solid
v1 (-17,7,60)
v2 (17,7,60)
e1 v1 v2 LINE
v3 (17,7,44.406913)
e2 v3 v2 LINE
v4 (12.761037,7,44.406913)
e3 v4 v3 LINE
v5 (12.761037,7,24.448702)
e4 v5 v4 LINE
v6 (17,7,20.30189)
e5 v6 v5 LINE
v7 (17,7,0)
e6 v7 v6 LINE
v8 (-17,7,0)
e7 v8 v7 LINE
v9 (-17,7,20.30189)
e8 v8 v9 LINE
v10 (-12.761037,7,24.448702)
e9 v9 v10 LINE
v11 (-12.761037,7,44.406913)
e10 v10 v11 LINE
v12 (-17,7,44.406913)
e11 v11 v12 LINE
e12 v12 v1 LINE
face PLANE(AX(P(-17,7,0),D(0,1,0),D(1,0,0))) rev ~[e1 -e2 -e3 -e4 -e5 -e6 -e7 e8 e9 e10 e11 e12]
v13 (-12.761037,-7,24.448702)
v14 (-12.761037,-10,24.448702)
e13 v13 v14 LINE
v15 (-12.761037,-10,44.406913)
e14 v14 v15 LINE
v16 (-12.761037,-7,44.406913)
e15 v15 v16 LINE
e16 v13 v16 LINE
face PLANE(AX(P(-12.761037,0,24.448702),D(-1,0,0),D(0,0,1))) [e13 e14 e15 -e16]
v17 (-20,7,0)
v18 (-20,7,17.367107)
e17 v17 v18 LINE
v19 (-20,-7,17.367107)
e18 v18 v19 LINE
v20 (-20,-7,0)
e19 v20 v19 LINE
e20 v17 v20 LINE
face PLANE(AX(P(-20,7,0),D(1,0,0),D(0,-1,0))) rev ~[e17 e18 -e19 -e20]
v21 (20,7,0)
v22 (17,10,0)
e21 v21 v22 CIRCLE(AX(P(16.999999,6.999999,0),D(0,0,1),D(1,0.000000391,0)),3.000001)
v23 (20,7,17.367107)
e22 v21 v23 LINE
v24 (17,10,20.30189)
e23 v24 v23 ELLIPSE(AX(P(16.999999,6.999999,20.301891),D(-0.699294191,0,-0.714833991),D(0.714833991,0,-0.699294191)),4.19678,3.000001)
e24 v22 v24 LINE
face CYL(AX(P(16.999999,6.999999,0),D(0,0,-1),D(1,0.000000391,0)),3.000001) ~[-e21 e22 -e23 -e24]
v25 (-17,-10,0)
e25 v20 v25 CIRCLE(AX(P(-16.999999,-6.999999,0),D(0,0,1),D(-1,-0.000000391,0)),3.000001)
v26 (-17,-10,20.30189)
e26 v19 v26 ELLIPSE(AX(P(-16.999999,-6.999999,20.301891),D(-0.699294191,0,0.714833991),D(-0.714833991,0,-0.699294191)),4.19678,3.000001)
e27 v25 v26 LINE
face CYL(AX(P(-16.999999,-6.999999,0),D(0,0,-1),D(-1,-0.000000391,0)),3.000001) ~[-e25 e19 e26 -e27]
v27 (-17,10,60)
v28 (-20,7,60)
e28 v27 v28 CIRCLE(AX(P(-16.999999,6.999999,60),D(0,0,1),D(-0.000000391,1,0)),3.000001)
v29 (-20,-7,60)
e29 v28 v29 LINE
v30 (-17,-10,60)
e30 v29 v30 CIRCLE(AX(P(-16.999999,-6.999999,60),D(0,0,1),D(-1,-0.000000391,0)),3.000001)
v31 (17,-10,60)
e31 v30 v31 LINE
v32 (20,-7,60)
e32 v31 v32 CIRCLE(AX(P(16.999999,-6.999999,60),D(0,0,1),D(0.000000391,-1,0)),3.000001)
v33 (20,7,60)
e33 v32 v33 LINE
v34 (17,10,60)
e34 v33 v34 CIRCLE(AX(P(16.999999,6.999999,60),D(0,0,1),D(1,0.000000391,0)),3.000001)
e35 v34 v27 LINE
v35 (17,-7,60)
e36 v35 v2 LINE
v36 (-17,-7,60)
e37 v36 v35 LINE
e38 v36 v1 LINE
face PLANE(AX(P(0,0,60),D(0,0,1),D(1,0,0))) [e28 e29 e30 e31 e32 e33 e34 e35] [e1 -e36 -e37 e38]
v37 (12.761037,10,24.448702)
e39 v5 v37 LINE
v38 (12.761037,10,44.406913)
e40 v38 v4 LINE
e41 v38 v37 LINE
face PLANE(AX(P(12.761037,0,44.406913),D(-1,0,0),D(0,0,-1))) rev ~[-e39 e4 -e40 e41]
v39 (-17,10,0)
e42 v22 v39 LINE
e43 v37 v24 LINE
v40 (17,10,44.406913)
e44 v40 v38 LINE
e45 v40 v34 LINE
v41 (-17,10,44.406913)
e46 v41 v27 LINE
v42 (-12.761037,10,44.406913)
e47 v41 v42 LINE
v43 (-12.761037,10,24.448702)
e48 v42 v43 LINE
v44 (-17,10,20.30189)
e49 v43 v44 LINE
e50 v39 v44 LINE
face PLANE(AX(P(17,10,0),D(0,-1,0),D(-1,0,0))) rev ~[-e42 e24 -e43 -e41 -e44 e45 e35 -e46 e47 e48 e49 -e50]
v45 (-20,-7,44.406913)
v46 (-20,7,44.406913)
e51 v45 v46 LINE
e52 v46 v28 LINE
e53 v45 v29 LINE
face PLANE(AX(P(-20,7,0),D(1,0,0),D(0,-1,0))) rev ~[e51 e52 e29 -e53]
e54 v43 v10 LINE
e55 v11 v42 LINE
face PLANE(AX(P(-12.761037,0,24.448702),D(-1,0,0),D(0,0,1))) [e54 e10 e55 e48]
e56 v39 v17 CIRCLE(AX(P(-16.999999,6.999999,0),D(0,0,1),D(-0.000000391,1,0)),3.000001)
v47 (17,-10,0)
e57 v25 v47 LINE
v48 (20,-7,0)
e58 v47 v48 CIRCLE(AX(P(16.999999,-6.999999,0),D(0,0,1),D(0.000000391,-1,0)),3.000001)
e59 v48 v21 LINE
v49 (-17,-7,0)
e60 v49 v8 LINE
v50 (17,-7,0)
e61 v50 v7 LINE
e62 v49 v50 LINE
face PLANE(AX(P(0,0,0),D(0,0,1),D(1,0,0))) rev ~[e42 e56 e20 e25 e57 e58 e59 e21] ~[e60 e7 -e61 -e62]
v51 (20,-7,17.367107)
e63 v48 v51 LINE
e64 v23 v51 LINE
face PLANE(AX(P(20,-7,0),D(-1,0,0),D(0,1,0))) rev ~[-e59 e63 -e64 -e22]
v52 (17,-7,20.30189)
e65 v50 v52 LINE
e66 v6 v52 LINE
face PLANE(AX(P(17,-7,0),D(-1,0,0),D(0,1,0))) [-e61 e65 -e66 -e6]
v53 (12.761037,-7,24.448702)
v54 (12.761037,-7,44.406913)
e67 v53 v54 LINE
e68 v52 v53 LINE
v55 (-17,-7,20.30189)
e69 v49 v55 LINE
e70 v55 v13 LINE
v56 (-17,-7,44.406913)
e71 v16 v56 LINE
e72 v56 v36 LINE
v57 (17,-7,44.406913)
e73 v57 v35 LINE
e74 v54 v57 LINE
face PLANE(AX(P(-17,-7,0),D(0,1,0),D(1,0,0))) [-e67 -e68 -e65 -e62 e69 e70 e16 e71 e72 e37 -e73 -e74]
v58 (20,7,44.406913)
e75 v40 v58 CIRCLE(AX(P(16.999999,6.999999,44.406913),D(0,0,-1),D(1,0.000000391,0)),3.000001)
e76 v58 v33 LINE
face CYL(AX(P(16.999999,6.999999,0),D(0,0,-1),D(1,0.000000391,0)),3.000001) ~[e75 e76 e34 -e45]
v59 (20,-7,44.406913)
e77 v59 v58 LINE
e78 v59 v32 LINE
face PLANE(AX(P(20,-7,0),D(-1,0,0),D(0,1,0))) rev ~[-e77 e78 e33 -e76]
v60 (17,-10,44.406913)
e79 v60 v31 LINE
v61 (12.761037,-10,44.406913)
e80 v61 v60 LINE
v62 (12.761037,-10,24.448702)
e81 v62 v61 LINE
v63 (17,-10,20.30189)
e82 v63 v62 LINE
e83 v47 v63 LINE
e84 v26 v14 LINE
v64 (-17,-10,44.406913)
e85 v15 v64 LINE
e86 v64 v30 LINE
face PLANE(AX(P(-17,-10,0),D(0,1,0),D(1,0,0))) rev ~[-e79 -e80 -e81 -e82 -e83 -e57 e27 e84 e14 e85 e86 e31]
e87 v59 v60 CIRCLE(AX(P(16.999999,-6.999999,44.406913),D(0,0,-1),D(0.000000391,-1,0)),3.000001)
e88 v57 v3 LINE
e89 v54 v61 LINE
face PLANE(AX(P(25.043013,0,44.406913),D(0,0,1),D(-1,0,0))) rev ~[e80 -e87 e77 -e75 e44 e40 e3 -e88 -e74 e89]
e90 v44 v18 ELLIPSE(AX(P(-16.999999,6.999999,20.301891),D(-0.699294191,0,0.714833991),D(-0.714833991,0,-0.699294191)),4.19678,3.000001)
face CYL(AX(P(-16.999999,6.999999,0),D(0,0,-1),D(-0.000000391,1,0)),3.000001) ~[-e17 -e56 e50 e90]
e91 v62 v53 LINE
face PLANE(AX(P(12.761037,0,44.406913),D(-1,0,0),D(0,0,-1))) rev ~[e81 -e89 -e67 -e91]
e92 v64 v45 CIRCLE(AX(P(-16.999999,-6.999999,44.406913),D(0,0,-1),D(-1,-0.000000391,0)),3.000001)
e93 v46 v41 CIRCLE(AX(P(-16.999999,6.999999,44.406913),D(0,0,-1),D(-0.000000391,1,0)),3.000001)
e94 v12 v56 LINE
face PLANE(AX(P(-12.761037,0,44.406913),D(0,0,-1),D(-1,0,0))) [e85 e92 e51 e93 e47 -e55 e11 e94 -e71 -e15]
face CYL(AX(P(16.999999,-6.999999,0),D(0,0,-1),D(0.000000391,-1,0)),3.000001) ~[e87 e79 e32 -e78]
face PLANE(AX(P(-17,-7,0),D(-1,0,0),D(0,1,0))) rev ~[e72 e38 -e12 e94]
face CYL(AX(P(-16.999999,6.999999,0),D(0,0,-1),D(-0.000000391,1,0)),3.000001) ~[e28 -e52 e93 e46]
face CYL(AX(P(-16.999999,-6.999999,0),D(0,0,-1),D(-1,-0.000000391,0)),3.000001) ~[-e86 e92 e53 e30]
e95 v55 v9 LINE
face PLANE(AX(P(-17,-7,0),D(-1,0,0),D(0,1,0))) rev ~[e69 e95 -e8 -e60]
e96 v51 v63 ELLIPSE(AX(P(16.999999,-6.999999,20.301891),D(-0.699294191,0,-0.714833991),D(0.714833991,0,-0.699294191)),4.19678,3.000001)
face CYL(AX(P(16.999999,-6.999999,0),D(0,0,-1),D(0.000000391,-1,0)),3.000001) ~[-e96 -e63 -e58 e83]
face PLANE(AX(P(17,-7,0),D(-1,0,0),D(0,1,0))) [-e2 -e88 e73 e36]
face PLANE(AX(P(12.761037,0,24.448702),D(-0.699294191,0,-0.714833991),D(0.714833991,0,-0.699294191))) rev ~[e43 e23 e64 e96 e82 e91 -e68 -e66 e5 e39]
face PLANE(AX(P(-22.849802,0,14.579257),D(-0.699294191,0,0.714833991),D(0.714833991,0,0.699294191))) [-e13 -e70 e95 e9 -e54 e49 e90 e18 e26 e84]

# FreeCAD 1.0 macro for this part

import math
import FreeCAD as App
import Part
import Sketcher

V = App.Vector
Q = App.Units.Quantity

doc = App.newDocument("Part")
body = doc.addObject("PartDesign::Body", "Body")

# Sketch on XY plane
sketch1 = body.newObject("Sketcher::SketchObject", "Sketch")
sketch1.AttachmentSupport = (doc.getObject("XY_Plane"), [""])
sketch1.MapMode = "FlatFace"
sketch1.addGeometry([
    Part.LineSegment(V(-17, -10, 0), V(17, -10, 0)),  # 0
    Part.ArcOfCircle(Part.Circle(V(17, -7, 0), V(0, 0, 1), 3), math.radians(-90), math.radians(0)),  # 1
    Part.LineSegment(V(20, -7, 0), V(20, 7, 0)),  # 2
    Part.ArcOfCircle(Part.Circle(V(17, 7, 0), V(0, 0, 1), 3), math.radians(0), math.radians(90)),  # 3
    Part.LineSegment(V(17, 10, 0), V(-17, 10, 0)),  # 4
    Part.ArcOfCircle(Part.Circle(V(-17, 7, 0), V(0, 0, 1), 3), math.radians(90), math.radians(180)),  # 5
    Part.LineSegment(V(-20, 7, 0), V(-20, -7, 0)),  # 6
    Part.ArcOfCircle(Part.Circle(V(-17, -7, 0), V(0, 0, 1), 3), math.radians(-180), math.radians(-90)),  # 7
    Part.LineSegment(V(17, -7, 0), V(-17, -7, 0)),  # 8
    Part.LineSegment(V(-17, -7, 0), V(-17, 7, 0)),  # 9
    Part.LineSegment(V(-17, 7, 0), V(17, 7, 0)),  # 10
    Part.LineSegment(V(17, 7, 0), V(17, -7, 0)),  # 11
], False)
sketch1.addConstraint([
    Sketcher.Constraint("Tangent", 0, 2, 1, 1),
    Sketcher.Constraint("Tangent", 1, 2, 2, 1),
    Sketcher.Constraint("Tangent", 2, 2, 3, 1),
    Sketcher.Constraint("Tangent", 3, 2, 4, 1),
    Sketcher.Constraint("Tangent", 4, 2, 5, 1),
    Sketcher.Constraint("Tangent", 5, 2, 6, 1),
    Sketcher.Constraint("Tangent", 6, 2, 7, 1),
    Sketcher.Constraint("Tangent", 7, 2, 0, 1),
    Sketcher.Constraint("Coincident", 8, 2, 9, 1),
    Sketcher.Constraint("Coincident", 9, 2, 10, 1),
    Sketcher.Constraint("Coincident", 10, 2, 11, 1),
    Sketcher.Constraint("Coincident", 11, 2, 8, 1),
    Sketcher.Constraint("Horizontal", 0),
    Sketcher.Constraint("Vertical", 2),
    Sketcher.Constraint("Horizontal", 4),
    Sketcher.Constraint("Vertical", 6),
    Sketcher.Constraint("Horizontal", 8),
    Sketcher.Constraint("Vertical", 9),
    Sketcher.Constraint("Horizontal", 10),
    Sketcher.Constraint("Vertical", 11),
    Sketcher.Constraint("Coincident", 8, 2, 7, 3),
    Sketcher.Constraint("Coincident", 9, 2, 5, 3),
    Sketcher.Constraint("Coincident", 10, 2, 3, 3),
    Sketcher.Constraint("Equal", 1, 3),
    Sketcher.Constraint("Symmetric", 1, 3, 5, 3, -1, 1),
    Sketcher.Constraint("Radius", 1, Q("3.000001 mm")),
    Sketcher.Constraint("DistanceX", 0, 1, 0, 2, Q("34 mm")),
    Sketcher.Constraint("DistanceY", 2, 1, 2, 2, Q("14 mm")),
])
pad1 = body.newObject("PartDesign::Pad", "Pad")
pad1.Profile = sketch1
pad1.Length = 60

# Sketch on XZ plane
sketch2 = body.newObject("Sketcher::SketchObject", "Sketch001")
sketch2.AttachmentSupport = (doc.getObject("XZ_Plane"), [""])
sketch2.MapMode = "FlatFace"
sketch2.addGeometry([
    Part.LineSegment(V(-25, 44, 0), V(-23, 15, 0)),  # 0
    Part.LineSegment(V(-23, 15, 0), V(-13, 24, 0)),  # 1
    Part.LineSegment(V(-13, 24, 0), V(-13, 44, 0)),  # 2
    Part.LineSegment(V(-13, 44, 0), V(-25, 44, 0)),  # 3
    Part.LineSegment(V(23, 15, 0), V(25, 44, 0)),  # 4
    Part.LineSegment(V(25, 44, 0), V(13, 44, 0)),  # 5
    Part.LineSegment(V(13, 44, 0), V(13, 24, 0)),  # 6
    Part.LineSegment(V(13, 24, 0), V(23, 15, 0)),  # 7
], False)
sketch2.addConstraint([
    Sketcher.Constraint("Coincident", 0, 2, 1, 1),
    Sketcher.Constraint("Coincident", 1, 2, 2, 1),
    Sketcher.Constraint("Coincident", 2, 2, 3, 1),
    Sketcher.Constraint("Coincident", 3, 2, 0, 1),
    Sketcher.Constraint("Coincident", 4, 2, 5, 1),
    Sketcher.Constraint("Coincident", 5, 2, 6, 1),
    Sketcher.Constraint("Coincident", 6, 2, 7, 1),
    Sketcher.Constraint("Coincident", 7, 2, 4, 1),
    Sketcher.Constraint("Vertical", 2),
    Sketcher.Constraint("Horizontal", 3),
    Sketcher.Constraint("Horizontal", 5),
    Sketcher.Constraint("Vertical", 6),
    Sketcher.Constraint("Symmetric", 3, 2, 4, 2, -2),
    Sketcher.Constraint("Symmetric", 1, 2, 6, 2, -2),
    Sketcher.Constraint("Symmetric", 0, 2, 7, 2, -2),
    Sketcher.Constraint("DistanceY", 2, 1, 2, 2, Q("19.958211 mm")),
    Sketcher.Constraint("Distance", 0, Q("29.90818 mm")),
    Sketcher.Constraint("DistanceX", 3, 2, 3, 1, Q("12.281976 mm")),
    Sketcher.Constraint("DistanceX", 3, 2, 0, 2, Q("2.193211 mm")),
    Sketcher.Constraint("DistanceX", 2, 2, 4, 2, Q("37.80405 mm")),
    Sketcher.Constraint("DistanceY", -1, 1, 0, 2, Q("14.579257 mm")),
])
pocket1 = body.newObject("PartDesign::Pocket", "Pocket")
pocket1.Profile = sketch2
pocket1.Length = 25
pocket1.Midplane = True

doc.recompute()
